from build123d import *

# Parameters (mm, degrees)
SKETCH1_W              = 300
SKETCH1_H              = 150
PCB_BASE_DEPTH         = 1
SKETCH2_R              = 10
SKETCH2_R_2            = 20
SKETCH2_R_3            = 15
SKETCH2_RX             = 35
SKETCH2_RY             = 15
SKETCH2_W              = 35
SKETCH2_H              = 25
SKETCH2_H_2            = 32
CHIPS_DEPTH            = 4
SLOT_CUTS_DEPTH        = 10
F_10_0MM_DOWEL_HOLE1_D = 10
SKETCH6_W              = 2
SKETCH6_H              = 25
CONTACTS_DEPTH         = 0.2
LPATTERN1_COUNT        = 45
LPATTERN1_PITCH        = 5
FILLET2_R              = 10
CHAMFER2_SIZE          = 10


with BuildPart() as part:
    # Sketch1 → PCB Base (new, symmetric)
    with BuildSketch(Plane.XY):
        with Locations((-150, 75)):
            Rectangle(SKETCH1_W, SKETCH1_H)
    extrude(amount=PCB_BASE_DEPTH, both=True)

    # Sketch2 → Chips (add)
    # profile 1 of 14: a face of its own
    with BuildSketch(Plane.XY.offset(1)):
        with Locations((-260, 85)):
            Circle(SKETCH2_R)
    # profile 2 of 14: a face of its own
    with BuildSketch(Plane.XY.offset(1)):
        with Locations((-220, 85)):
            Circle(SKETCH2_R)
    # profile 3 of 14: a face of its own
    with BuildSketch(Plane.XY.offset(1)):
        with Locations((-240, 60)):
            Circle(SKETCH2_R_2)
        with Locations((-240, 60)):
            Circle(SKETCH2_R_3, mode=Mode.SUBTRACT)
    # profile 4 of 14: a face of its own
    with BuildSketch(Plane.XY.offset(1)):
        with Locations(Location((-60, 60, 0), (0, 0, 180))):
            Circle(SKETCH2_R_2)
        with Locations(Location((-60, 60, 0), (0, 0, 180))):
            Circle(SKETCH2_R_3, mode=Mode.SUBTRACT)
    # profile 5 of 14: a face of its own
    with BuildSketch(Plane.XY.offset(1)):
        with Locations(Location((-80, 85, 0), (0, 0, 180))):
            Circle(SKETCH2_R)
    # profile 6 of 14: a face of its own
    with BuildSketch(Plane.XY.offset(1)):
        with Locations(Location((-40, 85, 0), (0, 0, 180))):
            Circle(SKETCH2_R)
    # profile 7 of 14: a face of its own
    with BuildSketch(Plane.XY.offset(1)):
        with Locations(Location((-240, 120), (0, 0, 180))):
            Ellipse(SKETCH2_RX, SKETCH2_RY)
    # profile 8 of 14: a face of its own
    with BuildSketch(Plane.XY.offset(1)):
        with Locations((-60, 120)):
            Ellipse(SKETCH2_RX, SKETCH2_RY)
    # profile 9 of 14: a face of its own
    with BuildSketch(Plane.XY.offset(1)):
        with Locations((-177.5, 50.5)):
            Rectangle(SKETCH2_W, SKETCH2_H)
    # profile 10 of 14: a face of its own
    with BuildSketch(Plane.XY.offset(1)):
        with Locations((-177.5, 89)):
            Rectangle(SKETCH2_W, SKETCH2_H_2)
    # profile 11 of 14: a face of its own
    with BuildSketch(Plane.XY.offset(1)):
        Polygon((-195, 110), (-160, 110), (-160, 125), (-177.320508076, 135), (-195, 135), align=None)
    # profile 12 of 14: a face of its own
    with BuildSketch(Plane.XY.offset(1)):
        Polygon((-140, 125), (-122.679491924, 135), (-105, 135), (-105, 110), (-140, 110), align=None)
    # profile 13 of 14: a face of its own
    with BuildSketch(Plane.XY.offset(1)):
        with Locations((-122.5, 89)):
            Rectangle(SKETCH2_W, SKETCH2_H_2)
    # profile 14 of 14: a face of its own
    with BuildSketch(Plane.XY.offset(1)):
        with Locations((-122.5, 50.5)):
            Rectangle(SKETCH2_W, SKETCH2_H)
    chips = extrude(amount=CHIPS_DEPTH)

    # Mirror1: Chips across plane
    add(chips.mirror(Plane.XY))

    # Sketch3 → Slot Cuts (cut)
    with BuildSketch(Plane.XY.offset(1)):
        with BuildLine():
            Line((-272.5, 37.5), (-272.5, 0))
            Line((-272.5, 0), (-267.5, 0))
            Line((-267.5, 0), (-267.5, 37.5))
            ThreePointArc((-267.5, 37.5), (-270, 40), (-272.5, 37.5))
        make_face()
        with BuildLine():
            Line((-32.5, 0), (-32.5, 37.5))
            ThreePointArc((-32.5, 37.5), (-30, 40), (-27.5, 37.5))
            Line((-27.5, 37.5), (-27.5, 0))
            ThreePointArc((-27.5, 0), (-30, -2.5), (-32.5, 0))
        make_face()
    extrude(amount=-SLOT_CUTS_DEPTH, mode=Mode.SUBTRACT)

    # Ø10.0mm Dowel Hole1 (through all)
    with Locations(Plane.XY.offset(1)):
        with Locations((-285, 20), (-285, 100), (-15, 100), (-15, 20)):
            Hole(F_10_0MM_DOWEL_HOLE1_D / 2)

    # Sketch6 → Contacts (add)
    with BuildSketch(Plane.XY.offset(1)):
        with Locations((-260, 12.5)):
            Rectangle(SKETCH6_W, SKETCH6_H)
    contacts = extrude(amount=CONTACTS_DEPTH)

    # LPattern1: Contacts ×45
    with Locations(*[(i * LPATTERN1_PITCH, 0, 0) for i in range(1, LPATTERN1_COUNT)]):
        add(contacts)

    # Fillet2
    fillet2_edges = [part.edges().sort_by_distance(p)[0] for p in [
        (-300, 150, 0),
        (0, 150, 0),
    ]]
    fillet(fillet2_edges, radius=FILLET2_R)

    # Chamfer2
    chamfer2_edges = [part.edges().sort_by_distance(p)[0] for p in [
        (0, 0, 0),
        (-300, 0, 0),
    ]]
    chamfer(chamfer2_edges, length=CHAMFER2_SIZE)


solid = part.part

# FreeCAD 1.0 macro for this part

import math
import FreeCAD as App
import Part
import Sketcher

V = App.Vector
Q = App.Units.Quantity


def edges_at(feature, points):
    """Names of the edges that pass closest to the given points."""
    edges = feature.Shape.Edges
    near = lambda p: min(range(len(edges)), key=lambda i: edges[i].distToShape(Part.Vertex(*p))[0])
    return sorted({f"Edge{near(p) + 1}" for p in points})


def add_polygon(sketch, points):
    """Adds a closed chain of lines whose ends are joined by coincident constraints."""
    first, n = sketch.GeometryCount, len(points)
    for a, b in zip(points, points[1:] + points[:1]):
        sketch.addGeometry(Part.LineSegment(App.Vector(*a, 0), App.Vector(*b, 0)), False)
    for i in range(n):
        sketch.addConstraint(Sketcher.Constraint("Coincident", first + i, 2, first + (i + 1) % n, 1))

doc = App.newDocument("Part")
body = doc.addObject("PartDesign::Body", "Body")

# Sketch on XY plane
sketch1 = body.newObject("Sketcher::SketchObject", "Sketch")
sketch1.AttachmentSupport = (doc.getObject("XY_Plane"), [""])
sketch1.MapMode = "FlatFace"
add_polygon(sketch1, [(-300, 150), (-300, 0), (0, 0), (0, 150)])  # lines 0-3
sketch1.addConstraint(Sketcher.Constraint("Vertical", 0))
sketch1.addConstraint(Sketcher.Constraint("Horizontal", 1))
sketch1.addConstraint(Sketcher.Constraint("Vertical", 2))
sketch1.addConstraint(Sketcher.Constraint("Horizontal", 3))
sketch1.addConstraint(Sketcher.Constraint("Coincident", 1, 2, -1, 1))
sketch1.addConstraint(Sketcher.Constraint("DistanceX", 1, 1, 1, 2, 300.0))
sketch1.addConstraint(Sketcher.Constraint("DistanceY", 0, 2, 0, 1, 150.0))
pad1 = body.newObject("PartDesign::Pad", "Pad")
pad1.Profile = sketch1
pad1.Length = 2
pad1.Midplane = True

# Sketch on XY plane
sketch2 = body.newObject("Sketcher::SketchObject", "Sketch001")
sketch2.AttachmentSupport = (doc.getObject("XY_Plane"), [""])
sketch2.MapMode = "FlatFace"
sketch2.AttachmentOffset = App.Placement(V(0, 0, 1), App.Rotation())
sketch2.addGeometry(Part.Circle(V(-260, 85, 0), V(0, 0, 1), 10), False)  # 0
sketch2.addGeometry(Part.Circle(V(-220, 85, 0), V(0, 0, 1), 10), False)  # 1
sketch2.addGeometry(Part.Circle(V(-240, 60, 0), V(0, 0, 1), 20), False)  # 2
sketch2.addGeometry(Part.Circle(V(-240, 60, 0), V(0, 0, 1), 15), False)  # 3
sketch2.addGeometry(Part.Circle(V(-60, 60, 0), V(0, 0, 1), 20), False)  # 4
sketch2.addGeometry(Part.Circle(V(-60, 60, 0), V(0, 0, 1), 15), False)  # 5
sketch2.addGeometry(Part.Circle(V(-80, 85, 0), V(0, 0, 1), 10), False)  # 6
sketch2.addGeometry(Part.Circle(V(-40, 85, 0), V(0, 0, 1), 10), False)  # 7
sketch2.addGeometry(Part.Ellipse(V(-275, 120, 0), V(-240, 105, 0), V(-240, 120, 0)), False)  # 8
sketch2.addGeometry(Part.Ellipse(V(-25, 120, 0), V(-60, 135, 0), V(-60, 120, 0)), False)  # 9
add_polygon(sketch2, [(-195, 63), (-195, 38), (-160, 38), (-160, 63)])  # lines 10-13
add_polygon(sketch2, [(-195, 105), (-195, 73), (-160, 73), (-160, 105)])  # lines 14-17
add_polygon(sketch2, [(-195, 110), (-160, 110), (-160, 125), (-177.320508, 135), (-195, 135)])  # lines 18-22
add_polygon(sketch2, [(-122.679492, 135), (-140, 125), (-140, 110), (-105, 110), (-105, 135)])  # lines 23-27
add_polygon(sketch2, [(-140, 105), (-140, 73), (-105, 73), (-105, 105)])  # lines 28-31
add_polygon(sketch2, [(-140, 63), (-140, 38), (-105, 38), (-105, 63)])  # lines 32-35
sketch2.addConstraint(Sketcher.Constraint("Block", 8))
sketch2.addConstraint(Sketcher.Constraint("Block", 9))
sketch2.addConstraint(Sketcher.Constraint("Vertical", 10))
sketch2.addConstraint(Sketcher.Constraint("Horizontal", 11))
sketch2.addConstraint(Sketcher.Constraint("Vertical", 12))
sketch2.addConstraint(Sketcher.Constraint("Horizontal", 13))
sketch2.addConstraint(Sketcher.Constraint("Vertical", 14))
sketch2.addConstraint(Sketcher.Constraint("Horizontal", 15))
sketch2.addConstraint(Sketcher.Constraint("Vertical", 16))
sketch2.addConstraint(Sketcher.Constraint("Horizontal", 17))
sketch2.addConstraint(Sketcher.Constraint("Horizontal", 18))
sketch2.addConstraint(Sketcher.Constraint("Vertical", 19))
sketch2.addConstraint(Sketcher.Constraint("Horizontal", 21))
sketch2.addConstraint(Sketcher.Constraint("Vertical", 22))
sketch2.addConstraint(Sketcher.Constraint("Vertical", 24))
sketch2.addConstraint(Sketcher.Constraint("Horizontal", 25))
sketch2.addConstraint(Sketcher.Constraint("Vertical", 26))
sketch2.addConstraint(Sketcher.Constraint("Horizontal", 27))
sketch2.addConstraint(Sketcher.Constraint("Vertical", 28))
sketch2.addConstraint(Sketcher.Constraint("Horizontal", 29))
sketch2.addConstraint(Sketcher.Constraint("Vertical", 30))
sketch2.addConstraint(Sketcher.Constraint("Horizontal", 31))
sketch2.addConstraint(Sketcher.Constraint("Vertical", 32))
sketch2.addConstraint(Sketcher.Constraint("Horizontal", 33))
sketch2.addConstraint(Sketcher.Constraint("Vertical", 34))
sketch2.addConstraint(Sketcher.Constraint("Horizontal", 35))
sketch2.addConstraint(Sketcher.Constraint("Coincident", 3, 3, 2, 3))
sketch2.addConstraint(Sketcher.Constraint("Coincident", 5, 3, 4, 3))
sketch2.addConstraint(Sketcher.Constraint("Equal", 0, 1))
sketch2.addConstraint(Sketcher.Constraint("Equal", 2, 4))
sketch2.addConstraint(Sketcher.Constraint("Equal", 3, 5))
sketch2.addConstraint(Sketcher.Constraint("Equal", 1, 6))
sketch2.addConstraint(Sketcher.Constraint("Equal", 6, 7))
sketch2.addConstraint(Sketcher.Constraint("Horizontal", 0, 3, 1, 3))
sketch2.addConstraint(Sketcher.Constraint("Horizontal", 3, 3, 4, 3))
sketch2.addConstraint(Sketcher.Constraint("Horizontal", 1, 3, 6, 3))
sketch2.addConstraint(Sketcher.Constraint("Horizontal", 6, 3, 7, 3))
sketch2.addConstraint(Sketcher.Constraint("Horizontal", 19, 2, 23, 2))
sketch2.addConstraint(Sketcher.Constraint("Horizontal", 22, 2, 24, 2))
sketch2.addConstraint(Sketcher.Constraint("Horizontal", 21, 2, 26, 2))
sketch2.addConstraint(Sketcher.Constraint("Horizontal", 15, 2, 28, 2))
sketch2.addConstraint(Sketcher.Constraint("Horizontal", 17, 2, 30, 2))
sketch2.addConstraint(Sketcher.Constraint("Horizontal", 11, 2, 32, 2))
sketch2.addConstraint(Sketcher.Constraint("Horizontal", 13, 2, 34, 2))
sketch2.addConstraint(Sketcher.Constraint("Vertical", 13, 2, 14, 2))
sketch2.addConstraint(Sketcher.Constraint("Vertical", 12, 2, 15, 2))
sketch2.addConstraint(Sketcher.Constraint("Vertical", 16, 2, 18, 2))
sketch2.addConstraint(Sketcher.Constraint("Vertical", 17, 2, 21, 2))
sketch2.addConstraint(Sketcher.Constraint("Vertical", 24, 2, 28, 2))
sketch2.addConstraint(Sketcher.Constraint("Vertical", 26, 2, 29, 2))
sketch2.addConstraint(Sketcher.Constraint("Vertical", 31, 2, 32, 2))
sketch2.addConstraint(Sketcher.Constraint("Vertical", 30, 2, 33, 2))
sketch2.addConstraint(Sketcher.Constraint("Equal", 18, 25))
sketch2.addConstraint(Sketcher.Constraint("Equal", 21, 27))
sketch2.addConstraint(Sketcher.Constraint("Equal", 12, 22))
sketch2.addConstraint(Sketcher.Constraint("Diameter", 0, 20.0))
sketch2.addConstraint(Sketcher.Constraint("Diameter", 2, 40.0))
sketch2.addConstraint(Sketcher.Constraint("Diameter", 3, 30.0))
sketch2.addConstraint(Sketcher.Constraint("DistanceX", 11, 1, 11, 2, 35.0))
sketch2.addConstraint(Sketcher.Constraint("DistanceY", 10, 2, 10, 1, 25.0))
sketch2.addConstraint(Sketcher.Constraint("DistanceY", 14, 2, 14, 1, 32.0))
sketch2.addConstraint(Sketcher.Constraint("DistanceY", 19, 1, 19, 2, 15.0))
sketch2.addConstraint(Sketcher.Constraint("Angle", 20, Q("150 deg")))
sketch2.addConstraint(Sketcher.Constraint("DistanceX", 0, 3, -1, 1, 260.0))
sketch2.addConstraint(Sketcher.Constraint("DistanceY", -1, 1, 0, 3, 85.0))
sketch2.addConstraint(Sketcher.Constraint("DistanceX", 1, 3, -1, 1, 220.0))
sketch2.addConstraint(Sketcher.Constraint("DistanceX", 2, 3, -1, 1, 240.0))
sketch2.addConstraint(Sketcher.Constraint("DistanceY", -1, 1, 2, 3, 60.0))
sketch2.addConstraint(Sketcher.Constraint("DistanceX", 4, 3, -1, 1, 60.0))
sketch2.addConstraint(Sketcher.Constraint("DistanceX", 6, 3, -1, 1, 80.0))
sketch2.addConstraint(Sketcher.Constraint("DistanceX", 7, 3, -1, 1, 40.0))
sketch2.addConstraint(Sketcher.Constraint("DistanceX", 10, 2, -1, 1, 195.0))
sketch2.addConstraint(Sketcher.Constraint("DistanceY", -1, 1, 10, 2, 38.0))
sketch2.addConstraint(Sketcher.Constraint("DistanceY", -1, 1, 14, 2, 73.0))
sketch2.addConstraint(Sketcher.Constraint("DistanceY", -1, 1, 18, 2, 110.0))
sketch2.addConstraint(Sketcher.Constraint("DistanceX", 23, 2, -1, 1, 140.0))
pad2 = body.newObject("PartDesign::Pad", "Pad001")
pad2.Profile = sketch2
pad2.Length = 4
doc.recompute()

mirrored = body.newObject("PartDesign::Mirrored", "Mirrored")
mirrored.Originals = [pad2]
mirrored.MirrorPlane = (doc.getObject("XY_Plane"), [""])
body.Tip = mirrored

# Sketch on XY plane
sketch3 = body.newObject("Sketcher::SketchObject", "Sketch002")
sketch3.AttachmentSupport = (doc.getObject("XY_Plane"), [""])
sketch3.MapMode = "FlatFace"
sketch3.AttachmentOffset = App.Placement(V(0, 0, 1), App.Rotation())
sketch3.addGeometry(Part.LineSegment(V(-272.5, 37.5, 0), V(-272.5, 0, 0)), False)
sketch3.addGeometry(Part.LineSegment(V(-272.5, 0, 0), V(-267.5, 0, 0)), False)
sketch3.addGeometry(Part.LineSegment(V(-267.5, 0, 0), V(-267.5, 37.5, 0)), False)
sketch3.addGeometry(Part.ArcOfCircle(Part.Circle(V(-270, 37.5, 0), V(0, 0, 1), 2.5), math.radians(0), math.radians(180)), False)
sketch3.addGeometry(Part.LineSegment(V(-32.5, 37.5, 0), V(-32.5, 0, 0)), False)
sketch3.addGeometry(Part.ArcOfCircle(Part.Circle(V(-30, 0, 0), V(0, 0, 1), 2.5), math.radians(180), math.radians(360)), False)
sketch3.addGeometry(Part.LineSegment(V(-27.5, 0, 0), V(-27.5, 37.5, 0)), False)
sketch3.addGeometry(Part.ArcOfCircle(Part.Circle(V(-30, 37.5, 0), V(0, 0, 1), 2.5), math.radians(0), math.radians(180)), False)
sketch3.addConstraint(Sketcher.Constraint("Coincident", 0, 2, 1, 1))
sketch3.addConstraint(Sketcher.Constraint("Coincident", 1, 2, 2, 1))
sketch3.addConstraint(Sketcher.Constraint("Tangent", 2, 2, 3, 1))
sketch3.addConstraint(Sketcher.Constraint("Tangent", 3, 2, 0, 1))
sketch3.addConstraint(Sketcher.Constraint("Tangent", 4, 2, 5, 1))
sketch3.addConstraint(Sketcher.Constraint("Tangent", 5, 2, 6, 1))
sketch3.addConstraint(Sketcher.Constraint("Tangent", 6, 2, 7, 1))
sketch3.addConstraint(Sketcher.Constraint("Tangent", 7, 2, 4, 1))
sketch3.addConstraint(Sketcher.Constraint("Vertical", 0))
sketch3.addConstraint(Sketcher.Constraint("Horizontal", 1))
sketch3.addConstraint(Sketcher.Constraint("Vertical", 2))
sketch3.addConstraint(Sketcher.Constraint("Vertical", 4))
sketch3.addConstraint(Sketcher.Constraint("Vertical", 6))
sketch3.addConstraint(Sketcher.Constraint("Equal", 3, 5))
sketch3.addConstraint(Sketcher.Constraint("PointOnObject", 5, 3, -1))
sketch3.addConstraint(Sketcher.Constraint("PointOnObject", 0, 2, -1))
sketch3.addConstraint(Sketcher.Constraint("Horizontal", 3, 3, 7, 3))
sketch3.addConstraint(Sketcher.Constraint("Radius", 3, 2.5))
sketch3.addConstraint(Sketcher.Constraint("DistanceY", 0, 2, 0, 1, 37.5))
sketch3.addConstraint(Sketcher.Constraint("DistanceX", 3, 3, -1, 1, 270.0))
sketch3.addConstraint(Sketcher.Constraint("DistanceX", 5, 3, -1, 1, 30.0))
pocket1 = body.newObject("PartDesign::Pocket", "Pocket")
pocket1.Profile = sketch3
pocket1.Length = 10

# Sketch on XY plane
sketch4 = body.newObject("Sketcher::SketchObject", "Sketch003")
sketch4.AttachmentSupport = (doc.getObject("XY_Plane"), [""])
sketch4.MapMode = "FlatFace"
sketch4.AttachmentOffset = App.Placement(V(0, 0, 1), App.Rotation())
sketch4.addGeometry(Part.Circle(V(-285, 20, 0), V(0, 0, 1), 5), False)
sketch4.addGeometry(Part.Circle(V(-285, 100, 0), V(0, 0, 1), 5), False)
sketch4.addGeometry(Part.Circle(V(-15, 100, 0), V(0, 0, 1), 5), False)
sketch4.addGeometry(Part.Circle(V(-15, 20, 0), V(0, 0, 1), 5), False)
sketch4.addConstraint(Sketcher.Constraint("Equal", 0, 1))
sketch4.addConstraint(Sketcher.Constraint("Equal", 1, 2))
sketch4.addConstraint(Sketcher.Constraint("Equal", 2, 3))
sketch4.addConstraint(Sketcher.Constraint("Horizontal", 1, 3, 2, 3))
sketch4.addConstraint(Sketcher.Constraint("Horizontal", 0, 3, 3, 3))
sketch4.addConstraint(Sketcher.Constraint("Vertical", 0, 3, 1, 3))
sketch4.addConstraint(Sketcher.Constraint("Vertical", 2, 3, 3, 3))
sketch4.addConstraint(Sketcher.Constraint("Diameter", 0, 10.0))
sketch4.addConstraint(Sketcher.Constraint("DistanceX", 0, 3, -1, 1, 285.0))
sketch4.addConstraint(Sketcher.Constraint("DistanceY", -1, 1, 0, 3, 20.0))
sketch4.addConstraint(Sketcher.Constraint("DistanceY", -1, 1, 1, 3, 100.0))
sketch4.addConstraint(Sketcher.Constraint("DistanceX", 2, 3, -1, 1, 15.0))
doc.recompute()
hole = body.newObject("PartDesign::Hole", "Hole")
hole.Profile = sketch4
hole.ThreadType = "None"
hole.Diameter = 10
hole.DepthType = "ThroughAll"

# Sketch on XY plane
sketch5 = body.newObject("Sketcher::SketchObject", "Sketch004")
sketch5.AttachmentSupport = (doc.getObject("XY_Plane"), [""])
sketch5.MapMode = "FlatFace"
sketch5.AttachmentOffset = App.Placement(V(0, 0, 1), App.Rotation())
add_polygon(sketch5, [(-261, 25), (-261, 0), (-259, 0), (-259, 25)])  # lines 0-3
sketch5.addConstraint(Sketcher.Constraint("Vertical", 0))
sketch5.addConstraint(Sketcher.Constraint("Horizontal", 1))
sketch5.addConstraint(Sketcher.Constraint("Vertical", 2))
sketch5.addConstraint(Sketcher.Constraint("Horizontal", 3))
sketch5.addConstraint(Sketcher.Constraint("PointOnObject", 0, 2, -1))
sketch5.addConstraint(Sketcher.Constraint("DistanceX", 1, 1, 1, 2, 2.0))
sketch5.addConstraint(Sketcher.Constraint("DistanceY", 0, 2, 0, 1, 25.0))
sketch5.addConstraint(Sketcher.Constraint("DistanceX", 0, 2, -1, 1, 261.0))
pad3 = body.newObject("PartDesign::Pad", "Pad002")
pad3.Profile = sketch5
pad3.Length = 0.2
doc.recompute()

linearpattern = body.newObject("PartDesign::LinearPattern", "LinearPattern")
linearpattern.Originals = [pad3]
linearpattern.Direction = (doc.getObject("X_Axis"), [""])
linearpattern.Mode = "offset"
linearpattern.Offset = 5
linearpattern.Occurrences = 45
body.Tip = linearpattern
doc.recompute()

fillet = body.newObject("PartDesign::Fillet", "Fillet")
fillet.Base = (linearpattern, edges_at(linearpattern, [(-300, 150, 0), (0, 150, 0)]))
fillet.Radius = 10
doc.recompute()

chamfer = body.newObject("PartDesign::Chamfer", "Chamfer")
chamfer.Base = (fillet, edges_at(fillet, [(0, 0, 0), (-300, 0, 0)]))
chamfer.Size = 10

doc.recompute()
